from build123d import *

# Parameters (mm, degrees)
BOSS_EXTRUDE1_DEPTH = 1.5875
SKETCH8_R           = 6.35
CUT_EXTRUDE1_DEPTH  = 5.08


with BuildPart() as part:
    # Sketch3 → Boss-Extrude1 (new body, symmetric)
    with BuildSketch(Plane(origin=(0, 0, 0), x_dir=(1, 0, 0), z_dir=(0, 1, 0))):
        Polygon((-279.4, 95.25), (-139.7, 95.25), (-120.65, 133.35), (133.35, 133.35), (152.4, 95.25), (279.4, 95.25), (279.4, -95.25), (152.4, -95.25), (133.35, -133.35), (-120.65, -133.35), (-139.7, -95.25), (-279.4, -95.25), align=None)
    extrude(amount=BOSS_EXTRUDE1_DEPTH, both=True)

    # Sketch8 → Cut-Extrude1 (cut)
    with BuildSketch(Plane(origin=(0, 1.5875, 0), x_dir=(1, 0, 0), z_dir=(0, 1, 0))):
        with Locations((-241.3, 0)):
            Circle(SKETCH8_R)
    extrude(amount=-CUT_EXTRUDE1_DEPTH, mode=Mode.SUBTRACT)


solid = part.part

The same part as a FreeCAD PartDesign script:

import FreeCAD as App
import Part
import Sketcher

V = App.Vector
Q = App.Units.Quantity


def add_polygon(sketch, points):
    """Adds a closed chain of lines whose ends are joined by coincident constraints."""
    first, n = sketch.GeometryCount, len(points)
    for a, b in zip(points, points[1:] + points[:1]):
        sketch.addGeometry(Part.LineSegment(App.Vector(*a, 0), App.Vector(*b, 0)), False)
    for i in range(n):
        sketch.addConstraint(Sketcher.Constraint("Coincident", first + i, 2, first + (i + 1) % n, 1))

doc = App.newDocument("Part")
body = doc.addObject("PartDesign::Body", "Body")

sketch1 = body.newObject("Sketcher::SketchObject", "Sketch")
sketch1.AttachmentSupport = (doc.getObject("XZ_Plane"), [""])
sketch1.MapMode = "FlatFace"
add_polygon(sketch1, [(-139.7, -95.25), (-279.4, -95.25), (-279.4, 95.25), (-139.7, 95.25), (-120.65, 133.35), (133.35, 133.35), (152.4, 95.25), (279.4, 95.25), (279.4, -95.25), (152.4, -95.25), (133.35, -133.35), (-120.65, -133.35)])
sketch1.addConstraint([
    Sketcher.Constraint("Horizontal", 0),
    Sketcher.Constraint("Vertical", 1),
    Sketcher.Constraint("Horizontal", 2),
    Sketcher.Constraint("Horizontal", 4),
    Sketcher.Constraint("Horizontal", 6),
    Sketcher.Constraint("Vertical", 7),
    Sketcher.Constraint("Horizontal", 8),
    Sketcher.Constraint("Horizontal", 10),
    Sketcher.Constraint("Symmetric", 0, 2, 6, 2, -1, 1),
    Sketcher.Constraint("Symmetric", 5, 2, 8, 2, -1),
    Sketcher.Constraint("Symmetric", 4, 2, 9, 2, -1),
    Sketcher.Constraint("Symmetric", 2, 2, 11, 2, -1),
    Sketcher.Constraint("Parallel", 3, 9),
    Sketcher.Constraint("Parallel", 5, 11),
    Sketcher.Constraint("DistanceX", 4, 1, 4, 2, Q("10 in")),
    Sketcher.Constraint("DistanceX", 6, 1, 6, 2, Q("5 in")),
    Sketcher.Constraint("DistanceX", 0, 2, 0, 1, Q("5.5 in")),
    Sketcher.Constraint("DistanceY", 1, 1, 1, 2, Q("7.5 in")),
    Sketcher.Constraint("DistanceX", 0, 2, -1, 1, Q("11 in")),
    Sketcher.Constraint("DistanceY", 0, 2, 3, 2, Q("9 in")),
])
pad1 = body.newObject("PartDesign::Pad", "Pad")
pad1.Profile = sketch1
pad1.Length = Q("0.125 in")
pad1.Midplane = True

sketch2 = body.newObject("Sketcher::SketchObject", "Sketch001")
sketch2.AttachmentSupport = (doc.getObject("XZ_Plane"), [""])
sketch2.MapMode = "FlatFace"
sketch2.AttachmentOffset = App.Placement(V(0, 0, -0.0625 * 25.4), App.Rotation())
sketch2.addGeometry(Part.Circle(V(-241.3, 0, 0), V(0, 0, 1), 6.35), False)
sketch2.addConstraint([
    Sketcher.Constraint("PointOnObject", 0, 3, -1),
    Sketcher.Constraint("Diameter", 0, Q("0.5 in")),
    Sketcher.Constraint("DistanceX", 0, 3, -1, 1, Q("9.5 in")),
])
pocket1 = body.newObject("PartDesign::Pocket", "Pocket")
pocket1.Profile = sketch2
pocket1.Length = Q("0.2 in")
pocket1.Reversed = True

doc.recompute()
